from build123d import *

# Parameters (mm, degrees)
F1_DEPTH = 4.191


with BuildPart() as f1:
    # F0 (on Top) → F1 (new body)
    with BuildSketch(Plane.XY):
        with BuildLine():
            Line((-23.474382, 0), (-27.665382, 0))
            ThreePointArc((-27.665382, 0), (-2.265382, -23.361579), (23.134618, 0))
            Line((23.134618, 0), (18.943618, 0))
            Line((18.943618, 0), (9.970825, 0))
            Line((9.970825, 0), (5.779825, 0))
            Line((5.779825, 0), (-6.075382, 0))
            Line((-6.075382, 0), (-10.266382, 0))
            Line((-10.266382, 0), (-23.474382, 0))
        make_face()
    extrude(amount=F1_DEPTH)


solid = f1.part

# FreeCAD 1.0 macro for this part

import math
import FreeCAD as App
import Part
import Sketcher

V = App.Vector
Q = App.Units.Quantity

doc = App.newDocument("Part")
body = doc.addObject("PartDesign::Body", "Body")

sketch1 = body.newObject("Sketcher::SketchObject", "Sketch")
sketch1.AttachmentSupport = (doc.getObject("XY_Plane"), [""])
sketch1.MapMode = "FlatFace"
sketch1.addGeometry(Part.ArcOfCircle(Part.Circle(V(-2, 2, 0), V(0, 0, 1), 25), math.radians(-175), math.radians(-5)), False)
sketch1.addGeometry(Part.LineSegment(V(23, 0, 0), V(-28, 0, 0)), False)
sketch1.addConstraint(Sketcher.Constraint("Coincident", 0, 1, 1, 2))
sketch1.addConstraint(Sketcher.Constraint("Coincident", 1, 1, 0, 2))
sketch1.addConstraint(Sketcher.Constraint("Horizontal", 1))
sketch1.addConstraint(Sketcher.Constraint("PointOnObject", 0, 1, -1))
sketch1.addConstraint(Sketcher.Constraint("DistanceX", 1, 2, 1, 1, Q("2 in")))
sketch1.addConstraint(Sketcher.Constraint("Radius", 0, Q("25.488931 mm")))
sketch1.addConstraint(Sketcher.Constraint("DistanceX", 0, 3, -1, 1, Q("2.265382 mm")))
pad1 = body.newObject("PartDesign::Pad", "Pad")
pad1.Profile = sketch1
pad1.Length = Q("0.165 in")

doc.recompute()
